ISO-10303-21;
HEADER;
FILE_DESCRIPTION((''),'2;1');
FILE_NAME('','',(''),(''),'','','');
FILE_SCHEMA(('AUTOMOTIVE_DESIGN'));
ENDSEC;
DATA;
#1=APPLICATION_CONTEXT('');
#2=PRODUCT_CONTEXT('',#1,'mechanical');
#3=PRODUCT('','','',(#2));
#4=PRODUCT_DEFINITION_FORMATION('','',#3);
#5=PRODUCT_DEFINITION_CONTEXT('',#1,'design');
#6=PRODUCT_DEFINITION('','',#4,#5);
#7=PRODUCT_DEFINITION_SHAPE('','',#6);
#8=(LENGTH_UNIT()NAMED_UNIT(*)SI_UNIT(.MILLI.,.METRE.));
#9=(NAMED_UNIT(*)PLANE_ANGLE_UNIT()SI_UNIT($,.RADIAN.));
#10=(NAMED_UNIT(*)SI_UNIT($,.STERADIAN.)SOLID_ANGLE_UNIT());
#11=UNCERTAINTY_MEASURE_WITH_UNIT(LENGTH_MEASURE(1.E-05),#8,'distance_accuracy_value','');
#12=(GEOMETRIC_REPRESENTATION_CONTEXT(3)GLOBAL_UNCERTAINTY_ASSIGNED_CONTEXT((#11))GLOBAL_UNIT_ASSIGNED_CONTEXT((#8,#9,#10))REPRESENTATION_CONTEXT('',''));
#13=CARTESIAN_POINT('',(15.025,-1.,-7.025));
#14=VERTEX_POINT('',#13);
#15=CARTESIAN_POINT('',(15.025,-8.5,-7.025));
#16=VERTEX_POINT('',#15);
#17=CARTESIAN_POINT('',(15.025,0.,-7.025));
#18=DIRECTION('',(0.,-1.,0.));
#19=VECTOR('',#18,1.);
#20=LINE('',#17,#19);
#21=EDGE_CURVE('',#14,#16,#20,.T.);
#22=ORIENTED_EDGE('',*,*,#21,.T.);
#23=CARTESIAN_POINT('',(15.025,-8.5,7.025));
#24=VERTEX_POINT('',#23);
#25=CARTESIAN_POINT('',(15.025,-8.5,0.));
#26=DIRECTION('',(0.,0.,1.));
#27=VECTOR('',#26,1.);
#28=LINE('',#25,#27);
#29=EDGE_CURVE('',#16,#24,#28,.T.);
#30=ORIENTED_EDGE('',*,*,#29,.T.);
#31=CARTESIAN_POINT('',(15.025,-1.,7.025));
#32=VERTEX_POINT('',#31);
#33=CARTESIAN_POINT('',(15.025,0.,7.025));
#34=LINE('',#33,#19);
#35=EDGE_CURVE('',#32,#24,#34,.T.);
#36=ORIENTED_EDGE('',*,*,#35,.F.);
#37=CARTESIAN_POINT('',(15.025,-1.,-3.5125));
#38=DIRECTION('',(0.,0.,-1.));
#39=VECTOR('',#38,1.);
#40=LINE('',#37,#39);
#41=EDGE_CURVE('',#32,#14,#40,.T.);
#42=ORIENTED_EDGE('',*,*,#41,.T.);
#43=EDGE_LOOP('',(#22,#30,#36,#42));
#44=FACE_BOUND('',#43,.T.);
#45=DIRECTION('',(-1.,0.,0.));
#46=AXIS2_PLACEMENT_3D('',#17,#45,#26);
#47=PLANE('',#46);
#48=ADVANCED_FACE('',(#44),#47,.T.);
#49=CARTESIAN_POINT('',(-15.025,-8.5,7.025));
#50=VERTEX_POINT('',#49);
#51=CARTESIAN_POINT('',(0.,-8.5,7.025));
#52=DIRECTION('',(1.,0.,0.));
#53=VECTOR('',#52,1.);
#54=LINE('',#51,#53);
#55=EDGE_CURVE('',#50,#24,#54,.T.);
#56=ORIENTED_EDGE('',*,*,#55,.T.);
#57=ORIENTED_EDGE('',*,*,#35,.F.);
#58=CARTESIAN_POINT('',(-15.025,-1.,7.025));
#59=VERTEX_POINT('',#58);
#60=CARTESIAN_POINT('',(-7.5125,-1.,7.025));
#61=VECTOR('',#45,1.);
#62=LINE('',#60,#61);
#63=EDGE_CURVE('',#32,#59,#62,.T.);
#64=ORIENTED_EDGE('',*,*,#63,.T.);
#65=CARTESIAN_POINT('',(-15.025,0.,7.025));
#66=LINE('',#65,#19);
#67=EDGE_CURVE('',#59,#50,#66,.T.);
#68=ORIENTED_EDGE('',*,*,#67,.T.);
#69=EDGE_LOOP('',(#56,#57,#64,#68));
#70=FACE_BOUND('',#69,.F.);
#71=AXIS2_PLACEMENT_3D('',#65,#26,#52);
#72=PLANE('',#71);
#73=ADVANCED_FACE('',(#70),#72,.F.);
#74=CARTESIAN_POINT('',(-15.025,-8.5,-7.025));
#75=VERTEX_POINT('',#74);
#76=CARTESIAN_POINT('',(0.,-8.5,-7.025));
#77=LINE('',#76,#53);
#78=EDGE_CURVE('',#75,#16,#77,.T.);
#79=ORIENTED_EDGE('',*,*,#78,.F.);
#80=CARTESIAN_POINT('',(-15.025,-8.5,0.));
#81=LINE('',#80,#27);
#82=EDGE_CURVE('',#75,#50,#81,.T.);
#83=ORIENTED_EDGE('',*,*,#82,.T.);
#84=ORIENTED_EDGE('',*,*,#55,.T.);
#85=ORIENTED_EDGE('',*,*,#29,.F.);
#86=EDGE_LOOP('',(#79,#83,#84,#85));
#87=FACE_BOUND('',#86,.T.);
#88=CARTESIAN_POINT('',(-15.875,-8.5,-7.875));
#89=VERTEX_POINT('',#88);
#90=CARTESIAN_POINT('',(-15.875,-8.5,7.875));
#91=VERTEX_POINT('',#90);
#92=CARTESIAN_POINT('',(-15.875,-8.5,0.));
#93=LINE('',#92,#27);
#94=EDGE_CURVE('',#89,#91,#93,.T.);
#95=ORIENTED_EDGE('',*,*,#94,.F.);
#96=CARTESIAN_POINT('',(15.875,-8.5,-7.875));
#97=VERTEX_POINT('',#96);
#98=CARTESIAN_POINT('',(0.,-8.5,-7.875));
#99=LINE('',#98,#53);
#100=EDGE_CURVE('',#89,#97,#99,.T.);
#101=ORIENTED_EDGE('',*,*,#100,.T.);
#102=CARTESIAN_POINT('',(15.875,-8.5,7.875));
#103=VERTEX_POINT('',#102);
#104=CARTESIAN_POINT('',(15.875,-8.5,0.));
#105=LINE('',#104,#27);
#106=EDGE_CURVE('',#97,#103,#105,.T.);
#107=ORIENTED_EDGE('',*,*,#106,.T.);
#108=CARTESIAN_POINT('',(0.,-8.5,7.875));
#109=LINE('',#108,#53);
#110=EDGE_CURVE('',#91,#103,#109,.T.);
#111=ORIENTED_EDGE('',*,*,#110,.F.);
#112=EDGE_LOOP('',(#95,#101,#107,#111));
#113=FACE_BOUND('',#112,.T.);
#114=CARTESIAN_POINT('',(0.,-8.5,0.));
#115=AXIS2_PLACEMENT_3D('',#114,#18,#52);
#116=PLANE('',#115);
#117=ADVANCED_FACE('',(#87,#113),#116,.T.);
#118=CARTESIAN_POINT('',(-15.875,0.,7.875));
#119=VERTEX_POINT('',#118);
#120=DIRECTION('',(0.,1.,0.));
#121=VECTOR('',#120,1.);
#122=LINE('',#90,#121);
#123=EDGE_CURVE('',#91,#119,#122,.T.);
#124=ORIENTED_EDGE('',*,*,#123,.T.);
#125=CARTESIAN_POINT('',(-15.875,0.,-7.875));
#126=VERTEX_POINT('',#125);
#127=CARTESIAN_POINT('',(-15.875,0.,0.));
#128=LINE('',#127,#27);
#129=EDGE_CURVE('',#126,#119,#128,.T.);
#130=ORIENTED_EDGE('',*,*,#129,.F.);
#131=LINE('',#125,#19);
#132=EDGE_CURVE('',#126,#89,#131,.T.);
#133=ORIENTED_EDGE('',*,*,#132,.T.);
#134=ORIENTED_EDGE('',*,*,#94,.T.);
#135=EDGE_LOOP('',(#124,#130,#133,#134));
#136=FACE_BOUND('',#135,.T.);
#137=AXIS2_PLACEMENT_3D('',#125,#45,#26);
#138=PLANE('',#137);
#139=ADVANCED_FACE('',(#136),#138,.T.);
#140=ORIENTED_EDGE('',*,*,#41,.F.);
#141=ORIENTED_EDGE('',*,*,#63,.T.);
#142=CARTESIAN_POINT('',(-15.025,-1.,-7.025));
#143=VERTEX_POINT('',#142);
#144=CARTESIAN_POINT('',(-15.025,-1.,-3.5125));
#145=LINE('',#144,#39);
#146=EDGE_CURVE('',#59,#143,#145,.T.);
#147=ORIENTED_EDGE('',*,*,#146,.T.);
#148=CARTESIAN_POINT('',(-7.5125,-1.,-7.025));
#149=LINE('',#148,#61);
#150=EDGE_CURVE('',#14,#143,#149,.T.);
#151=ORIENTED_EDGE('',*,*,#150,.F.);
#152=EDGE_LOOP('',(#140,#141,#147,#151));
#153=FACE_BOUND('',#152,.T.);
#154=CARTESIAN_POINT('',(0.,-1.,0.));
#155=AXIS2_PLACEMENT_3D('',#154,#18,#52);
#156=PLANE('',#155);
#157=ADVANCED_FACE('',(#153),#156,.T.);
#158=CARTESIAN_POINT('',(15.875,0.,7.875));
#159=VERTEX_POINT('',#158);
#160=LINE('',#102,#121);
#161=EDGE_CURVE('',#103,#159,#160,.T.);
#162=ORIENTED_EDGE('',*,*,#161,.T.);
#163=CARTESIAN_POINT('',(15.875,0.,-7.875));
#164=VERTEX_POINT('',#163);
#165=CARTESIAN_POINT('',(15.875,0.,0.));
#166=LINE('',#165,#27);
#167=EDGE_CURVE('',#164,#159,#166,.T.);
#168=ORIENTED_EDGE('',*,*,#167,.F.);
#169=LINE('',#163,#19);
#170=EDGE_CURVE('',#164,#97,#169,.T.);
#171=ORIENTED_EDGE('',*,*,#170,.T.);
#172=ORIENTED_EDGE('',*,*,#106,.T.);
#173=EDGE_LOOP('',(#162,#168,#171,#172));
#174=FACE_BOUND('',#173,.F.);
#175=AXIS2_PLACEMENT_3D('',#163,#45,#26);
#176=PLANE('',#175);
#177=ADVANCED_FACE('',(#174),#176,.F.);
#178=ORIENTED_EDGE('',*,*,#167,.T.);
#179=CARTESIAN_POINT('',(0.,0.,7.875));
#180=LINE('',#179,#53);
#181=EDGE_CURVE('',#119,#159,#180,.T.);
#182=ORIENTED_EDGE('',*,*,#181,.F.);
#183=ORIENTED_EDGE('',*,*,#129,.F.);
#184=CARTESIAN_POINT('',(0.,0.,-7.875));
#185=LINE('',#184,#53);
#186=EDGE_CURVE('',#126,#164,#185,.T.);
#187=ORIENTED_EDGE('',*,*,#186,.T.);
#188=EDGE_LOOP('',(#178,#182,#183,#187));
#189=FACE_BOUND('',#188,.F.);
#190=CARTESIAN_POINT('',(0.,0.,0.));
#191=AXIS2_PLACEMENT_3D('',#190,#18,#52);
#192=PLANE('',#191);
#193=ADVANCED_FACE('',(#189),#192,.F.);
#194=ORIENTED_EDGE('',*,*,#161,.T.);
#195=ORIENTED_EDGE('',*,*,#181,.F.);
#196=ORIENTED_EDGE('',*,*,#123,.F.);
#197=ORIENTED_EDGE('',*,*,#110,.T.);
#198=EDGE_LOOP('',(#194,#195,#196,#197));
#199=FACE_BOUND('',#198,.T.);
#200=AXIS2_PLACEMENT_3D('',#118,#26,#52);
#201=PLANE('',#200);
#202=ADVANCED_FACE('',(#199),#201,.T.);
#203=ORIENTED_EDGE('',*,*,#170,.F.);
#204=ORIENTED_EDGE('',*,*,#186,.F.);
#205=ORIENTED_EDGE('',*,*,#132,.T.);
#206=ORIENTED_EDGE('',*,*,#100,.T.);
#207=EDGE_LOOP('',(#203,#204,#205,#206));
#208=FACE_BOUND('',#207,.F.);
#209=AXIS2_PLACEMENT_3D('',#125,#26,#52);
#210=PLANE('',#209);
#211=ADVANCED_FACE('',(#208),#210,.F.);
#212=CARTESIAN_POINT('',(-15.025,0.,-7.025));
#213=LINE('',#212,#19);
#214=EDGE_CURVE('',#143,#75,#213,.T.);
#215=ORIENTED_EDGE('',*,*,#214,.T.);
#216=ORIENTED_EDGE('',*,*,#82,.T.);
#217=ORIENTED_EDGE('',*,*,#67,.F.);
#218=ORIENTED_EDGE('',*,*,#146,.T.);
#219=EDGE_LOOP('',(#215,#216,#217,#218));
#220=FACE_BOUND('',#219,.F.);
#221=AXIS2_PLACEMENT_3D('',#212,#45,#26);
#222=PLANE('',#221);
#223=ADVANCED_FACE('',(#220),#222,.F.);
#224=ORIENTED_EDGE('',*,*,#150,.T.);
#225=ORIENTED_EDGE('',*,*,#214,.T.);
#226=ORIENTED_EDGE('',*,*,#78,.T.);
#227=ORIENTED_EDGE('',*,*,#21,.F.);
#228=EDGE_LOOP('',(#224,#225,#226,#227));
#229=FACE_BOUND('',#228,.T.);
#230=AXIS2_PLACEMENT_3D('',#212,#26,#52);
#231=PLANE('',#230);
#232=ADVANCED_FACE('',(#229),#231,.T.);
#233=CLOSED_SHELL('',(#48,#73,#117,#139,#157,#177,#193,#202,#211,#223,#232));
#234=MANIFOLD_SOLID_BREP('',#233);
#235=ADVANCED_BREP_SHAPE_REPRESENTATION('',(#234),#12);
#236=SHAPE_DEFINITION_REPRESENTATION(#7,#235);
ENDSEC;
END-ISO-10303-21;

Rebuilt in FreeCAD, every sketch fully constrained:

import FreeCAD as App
import Part
import Sketcher
from FreeCAD import Vector


def add_polygon(sketch, points):
    """Adds a closed chain of lines whose ends are joined by coincident constraints."""
    first, n = sketch.GeometryCount, len(points)
    for a, b in zip(points, points[1:] + points[:1]):
        sketch.addGeometry(Part.LineSegment(App.Vector(*a, 0), App.Vector(*b, 0)), False)
    for i in range(n):
        sketch.addConstraint(Sketcher.Constraint("Coincident", first + i, 2, first + (i + 1) % n, 1))

doc = App.newDocument("Part")
body = doc.addObject("PartDesign::Body", "Body")

# Sketch on XZ plane
sketch1 = body.newObject("Sketcher::SketchObject", "Sketch")
sketch1.AttachmentSupport = (doc.getObject("XZ_Plane"), [""])
sketch1.MapMode = "FlatFace"
add_polygon(sketch1, [(-16, 8), (-16, -8), (16, -8), (16, 8)])  # lines 0-3
sketch1.addConstraint([
    Sketcher.Constraint("Vertical", 0),
    Sketcher.Constraint("Horizontal", 1),
    Sketcher.Constraint("Vertical", 2),
    Sketcher.Constraint("Horizontal", 3),
    Sketcher.Constraint("Symmetric", 0, 2, 2, 2, -1, 1),
    Sketcher.Constraint("DistanceX", 1, 1, 1, 2, 31.75),
    Sketcher.Constraint("DistanceY", 0, 2, 0, 1, 15.75),
])
pad1 = body.newObject("PartDesign::Pad", "Pad")
pad1.Profile = sketch1
pad1.Length = 1

# Sketch on XZ plane
sketch2 = body.newObject("Sketcher::SketchObject", "Sketch001")
sketch2.AttachmentSupport = (doc.getObject("XZ_Plane"), [""])
sketch2.MapMode = "FlatFace"
add_polygon(sketch2, [(-16, 8), (-16, -8), (16, -8), (16, 8)])  # lines 0-3
add_polygon(sketch2, [(15, -7), (-15, -7), (-15, 7), (15, 7)])  # lines 4-7
sketch2.addConstraint([
    Sketcher.Constraint("Vertical", 0),
    Sketcher.Constraint("Horizontal", 1),
    Sketcher.Constraint("Vertical", 2),
    Sketcher.Constraint("Horizontal", 3),
    Sketcher.Constraint("Horizontal", 4),
    Sketcher.Constraint("Vertical", 5),
    Sketcher.Constraint("Horizontal", 6),
    Sketcher.Constraint("Vertical", 7),
    Sketcher.Constraint("Symmetric", 0, 2, 2, 2, -1, 1),
    Sketcher.Constraint("Symmetric", 4, 2, 6, 2, -1, 1),
    Sketcher.Constraint("DistanceX", 1, 1, 1, 2, 31.75),
    Sketcher.Constraint("DistanceX", 4, 2, 4, 1, 30.05),
    Sketcher.Constraint("DistanceY", 0, 2, 0, 1, 15.75),
    Sketcher.Constraint("DistanceY", 5, 1, 5, 2, 14.05),
])
pad2 = body.newObject("PartDesign::Pad", "Pad001")
pad2.Profile = sketch2
pad2.Length = 8.5

doc.recompute()
